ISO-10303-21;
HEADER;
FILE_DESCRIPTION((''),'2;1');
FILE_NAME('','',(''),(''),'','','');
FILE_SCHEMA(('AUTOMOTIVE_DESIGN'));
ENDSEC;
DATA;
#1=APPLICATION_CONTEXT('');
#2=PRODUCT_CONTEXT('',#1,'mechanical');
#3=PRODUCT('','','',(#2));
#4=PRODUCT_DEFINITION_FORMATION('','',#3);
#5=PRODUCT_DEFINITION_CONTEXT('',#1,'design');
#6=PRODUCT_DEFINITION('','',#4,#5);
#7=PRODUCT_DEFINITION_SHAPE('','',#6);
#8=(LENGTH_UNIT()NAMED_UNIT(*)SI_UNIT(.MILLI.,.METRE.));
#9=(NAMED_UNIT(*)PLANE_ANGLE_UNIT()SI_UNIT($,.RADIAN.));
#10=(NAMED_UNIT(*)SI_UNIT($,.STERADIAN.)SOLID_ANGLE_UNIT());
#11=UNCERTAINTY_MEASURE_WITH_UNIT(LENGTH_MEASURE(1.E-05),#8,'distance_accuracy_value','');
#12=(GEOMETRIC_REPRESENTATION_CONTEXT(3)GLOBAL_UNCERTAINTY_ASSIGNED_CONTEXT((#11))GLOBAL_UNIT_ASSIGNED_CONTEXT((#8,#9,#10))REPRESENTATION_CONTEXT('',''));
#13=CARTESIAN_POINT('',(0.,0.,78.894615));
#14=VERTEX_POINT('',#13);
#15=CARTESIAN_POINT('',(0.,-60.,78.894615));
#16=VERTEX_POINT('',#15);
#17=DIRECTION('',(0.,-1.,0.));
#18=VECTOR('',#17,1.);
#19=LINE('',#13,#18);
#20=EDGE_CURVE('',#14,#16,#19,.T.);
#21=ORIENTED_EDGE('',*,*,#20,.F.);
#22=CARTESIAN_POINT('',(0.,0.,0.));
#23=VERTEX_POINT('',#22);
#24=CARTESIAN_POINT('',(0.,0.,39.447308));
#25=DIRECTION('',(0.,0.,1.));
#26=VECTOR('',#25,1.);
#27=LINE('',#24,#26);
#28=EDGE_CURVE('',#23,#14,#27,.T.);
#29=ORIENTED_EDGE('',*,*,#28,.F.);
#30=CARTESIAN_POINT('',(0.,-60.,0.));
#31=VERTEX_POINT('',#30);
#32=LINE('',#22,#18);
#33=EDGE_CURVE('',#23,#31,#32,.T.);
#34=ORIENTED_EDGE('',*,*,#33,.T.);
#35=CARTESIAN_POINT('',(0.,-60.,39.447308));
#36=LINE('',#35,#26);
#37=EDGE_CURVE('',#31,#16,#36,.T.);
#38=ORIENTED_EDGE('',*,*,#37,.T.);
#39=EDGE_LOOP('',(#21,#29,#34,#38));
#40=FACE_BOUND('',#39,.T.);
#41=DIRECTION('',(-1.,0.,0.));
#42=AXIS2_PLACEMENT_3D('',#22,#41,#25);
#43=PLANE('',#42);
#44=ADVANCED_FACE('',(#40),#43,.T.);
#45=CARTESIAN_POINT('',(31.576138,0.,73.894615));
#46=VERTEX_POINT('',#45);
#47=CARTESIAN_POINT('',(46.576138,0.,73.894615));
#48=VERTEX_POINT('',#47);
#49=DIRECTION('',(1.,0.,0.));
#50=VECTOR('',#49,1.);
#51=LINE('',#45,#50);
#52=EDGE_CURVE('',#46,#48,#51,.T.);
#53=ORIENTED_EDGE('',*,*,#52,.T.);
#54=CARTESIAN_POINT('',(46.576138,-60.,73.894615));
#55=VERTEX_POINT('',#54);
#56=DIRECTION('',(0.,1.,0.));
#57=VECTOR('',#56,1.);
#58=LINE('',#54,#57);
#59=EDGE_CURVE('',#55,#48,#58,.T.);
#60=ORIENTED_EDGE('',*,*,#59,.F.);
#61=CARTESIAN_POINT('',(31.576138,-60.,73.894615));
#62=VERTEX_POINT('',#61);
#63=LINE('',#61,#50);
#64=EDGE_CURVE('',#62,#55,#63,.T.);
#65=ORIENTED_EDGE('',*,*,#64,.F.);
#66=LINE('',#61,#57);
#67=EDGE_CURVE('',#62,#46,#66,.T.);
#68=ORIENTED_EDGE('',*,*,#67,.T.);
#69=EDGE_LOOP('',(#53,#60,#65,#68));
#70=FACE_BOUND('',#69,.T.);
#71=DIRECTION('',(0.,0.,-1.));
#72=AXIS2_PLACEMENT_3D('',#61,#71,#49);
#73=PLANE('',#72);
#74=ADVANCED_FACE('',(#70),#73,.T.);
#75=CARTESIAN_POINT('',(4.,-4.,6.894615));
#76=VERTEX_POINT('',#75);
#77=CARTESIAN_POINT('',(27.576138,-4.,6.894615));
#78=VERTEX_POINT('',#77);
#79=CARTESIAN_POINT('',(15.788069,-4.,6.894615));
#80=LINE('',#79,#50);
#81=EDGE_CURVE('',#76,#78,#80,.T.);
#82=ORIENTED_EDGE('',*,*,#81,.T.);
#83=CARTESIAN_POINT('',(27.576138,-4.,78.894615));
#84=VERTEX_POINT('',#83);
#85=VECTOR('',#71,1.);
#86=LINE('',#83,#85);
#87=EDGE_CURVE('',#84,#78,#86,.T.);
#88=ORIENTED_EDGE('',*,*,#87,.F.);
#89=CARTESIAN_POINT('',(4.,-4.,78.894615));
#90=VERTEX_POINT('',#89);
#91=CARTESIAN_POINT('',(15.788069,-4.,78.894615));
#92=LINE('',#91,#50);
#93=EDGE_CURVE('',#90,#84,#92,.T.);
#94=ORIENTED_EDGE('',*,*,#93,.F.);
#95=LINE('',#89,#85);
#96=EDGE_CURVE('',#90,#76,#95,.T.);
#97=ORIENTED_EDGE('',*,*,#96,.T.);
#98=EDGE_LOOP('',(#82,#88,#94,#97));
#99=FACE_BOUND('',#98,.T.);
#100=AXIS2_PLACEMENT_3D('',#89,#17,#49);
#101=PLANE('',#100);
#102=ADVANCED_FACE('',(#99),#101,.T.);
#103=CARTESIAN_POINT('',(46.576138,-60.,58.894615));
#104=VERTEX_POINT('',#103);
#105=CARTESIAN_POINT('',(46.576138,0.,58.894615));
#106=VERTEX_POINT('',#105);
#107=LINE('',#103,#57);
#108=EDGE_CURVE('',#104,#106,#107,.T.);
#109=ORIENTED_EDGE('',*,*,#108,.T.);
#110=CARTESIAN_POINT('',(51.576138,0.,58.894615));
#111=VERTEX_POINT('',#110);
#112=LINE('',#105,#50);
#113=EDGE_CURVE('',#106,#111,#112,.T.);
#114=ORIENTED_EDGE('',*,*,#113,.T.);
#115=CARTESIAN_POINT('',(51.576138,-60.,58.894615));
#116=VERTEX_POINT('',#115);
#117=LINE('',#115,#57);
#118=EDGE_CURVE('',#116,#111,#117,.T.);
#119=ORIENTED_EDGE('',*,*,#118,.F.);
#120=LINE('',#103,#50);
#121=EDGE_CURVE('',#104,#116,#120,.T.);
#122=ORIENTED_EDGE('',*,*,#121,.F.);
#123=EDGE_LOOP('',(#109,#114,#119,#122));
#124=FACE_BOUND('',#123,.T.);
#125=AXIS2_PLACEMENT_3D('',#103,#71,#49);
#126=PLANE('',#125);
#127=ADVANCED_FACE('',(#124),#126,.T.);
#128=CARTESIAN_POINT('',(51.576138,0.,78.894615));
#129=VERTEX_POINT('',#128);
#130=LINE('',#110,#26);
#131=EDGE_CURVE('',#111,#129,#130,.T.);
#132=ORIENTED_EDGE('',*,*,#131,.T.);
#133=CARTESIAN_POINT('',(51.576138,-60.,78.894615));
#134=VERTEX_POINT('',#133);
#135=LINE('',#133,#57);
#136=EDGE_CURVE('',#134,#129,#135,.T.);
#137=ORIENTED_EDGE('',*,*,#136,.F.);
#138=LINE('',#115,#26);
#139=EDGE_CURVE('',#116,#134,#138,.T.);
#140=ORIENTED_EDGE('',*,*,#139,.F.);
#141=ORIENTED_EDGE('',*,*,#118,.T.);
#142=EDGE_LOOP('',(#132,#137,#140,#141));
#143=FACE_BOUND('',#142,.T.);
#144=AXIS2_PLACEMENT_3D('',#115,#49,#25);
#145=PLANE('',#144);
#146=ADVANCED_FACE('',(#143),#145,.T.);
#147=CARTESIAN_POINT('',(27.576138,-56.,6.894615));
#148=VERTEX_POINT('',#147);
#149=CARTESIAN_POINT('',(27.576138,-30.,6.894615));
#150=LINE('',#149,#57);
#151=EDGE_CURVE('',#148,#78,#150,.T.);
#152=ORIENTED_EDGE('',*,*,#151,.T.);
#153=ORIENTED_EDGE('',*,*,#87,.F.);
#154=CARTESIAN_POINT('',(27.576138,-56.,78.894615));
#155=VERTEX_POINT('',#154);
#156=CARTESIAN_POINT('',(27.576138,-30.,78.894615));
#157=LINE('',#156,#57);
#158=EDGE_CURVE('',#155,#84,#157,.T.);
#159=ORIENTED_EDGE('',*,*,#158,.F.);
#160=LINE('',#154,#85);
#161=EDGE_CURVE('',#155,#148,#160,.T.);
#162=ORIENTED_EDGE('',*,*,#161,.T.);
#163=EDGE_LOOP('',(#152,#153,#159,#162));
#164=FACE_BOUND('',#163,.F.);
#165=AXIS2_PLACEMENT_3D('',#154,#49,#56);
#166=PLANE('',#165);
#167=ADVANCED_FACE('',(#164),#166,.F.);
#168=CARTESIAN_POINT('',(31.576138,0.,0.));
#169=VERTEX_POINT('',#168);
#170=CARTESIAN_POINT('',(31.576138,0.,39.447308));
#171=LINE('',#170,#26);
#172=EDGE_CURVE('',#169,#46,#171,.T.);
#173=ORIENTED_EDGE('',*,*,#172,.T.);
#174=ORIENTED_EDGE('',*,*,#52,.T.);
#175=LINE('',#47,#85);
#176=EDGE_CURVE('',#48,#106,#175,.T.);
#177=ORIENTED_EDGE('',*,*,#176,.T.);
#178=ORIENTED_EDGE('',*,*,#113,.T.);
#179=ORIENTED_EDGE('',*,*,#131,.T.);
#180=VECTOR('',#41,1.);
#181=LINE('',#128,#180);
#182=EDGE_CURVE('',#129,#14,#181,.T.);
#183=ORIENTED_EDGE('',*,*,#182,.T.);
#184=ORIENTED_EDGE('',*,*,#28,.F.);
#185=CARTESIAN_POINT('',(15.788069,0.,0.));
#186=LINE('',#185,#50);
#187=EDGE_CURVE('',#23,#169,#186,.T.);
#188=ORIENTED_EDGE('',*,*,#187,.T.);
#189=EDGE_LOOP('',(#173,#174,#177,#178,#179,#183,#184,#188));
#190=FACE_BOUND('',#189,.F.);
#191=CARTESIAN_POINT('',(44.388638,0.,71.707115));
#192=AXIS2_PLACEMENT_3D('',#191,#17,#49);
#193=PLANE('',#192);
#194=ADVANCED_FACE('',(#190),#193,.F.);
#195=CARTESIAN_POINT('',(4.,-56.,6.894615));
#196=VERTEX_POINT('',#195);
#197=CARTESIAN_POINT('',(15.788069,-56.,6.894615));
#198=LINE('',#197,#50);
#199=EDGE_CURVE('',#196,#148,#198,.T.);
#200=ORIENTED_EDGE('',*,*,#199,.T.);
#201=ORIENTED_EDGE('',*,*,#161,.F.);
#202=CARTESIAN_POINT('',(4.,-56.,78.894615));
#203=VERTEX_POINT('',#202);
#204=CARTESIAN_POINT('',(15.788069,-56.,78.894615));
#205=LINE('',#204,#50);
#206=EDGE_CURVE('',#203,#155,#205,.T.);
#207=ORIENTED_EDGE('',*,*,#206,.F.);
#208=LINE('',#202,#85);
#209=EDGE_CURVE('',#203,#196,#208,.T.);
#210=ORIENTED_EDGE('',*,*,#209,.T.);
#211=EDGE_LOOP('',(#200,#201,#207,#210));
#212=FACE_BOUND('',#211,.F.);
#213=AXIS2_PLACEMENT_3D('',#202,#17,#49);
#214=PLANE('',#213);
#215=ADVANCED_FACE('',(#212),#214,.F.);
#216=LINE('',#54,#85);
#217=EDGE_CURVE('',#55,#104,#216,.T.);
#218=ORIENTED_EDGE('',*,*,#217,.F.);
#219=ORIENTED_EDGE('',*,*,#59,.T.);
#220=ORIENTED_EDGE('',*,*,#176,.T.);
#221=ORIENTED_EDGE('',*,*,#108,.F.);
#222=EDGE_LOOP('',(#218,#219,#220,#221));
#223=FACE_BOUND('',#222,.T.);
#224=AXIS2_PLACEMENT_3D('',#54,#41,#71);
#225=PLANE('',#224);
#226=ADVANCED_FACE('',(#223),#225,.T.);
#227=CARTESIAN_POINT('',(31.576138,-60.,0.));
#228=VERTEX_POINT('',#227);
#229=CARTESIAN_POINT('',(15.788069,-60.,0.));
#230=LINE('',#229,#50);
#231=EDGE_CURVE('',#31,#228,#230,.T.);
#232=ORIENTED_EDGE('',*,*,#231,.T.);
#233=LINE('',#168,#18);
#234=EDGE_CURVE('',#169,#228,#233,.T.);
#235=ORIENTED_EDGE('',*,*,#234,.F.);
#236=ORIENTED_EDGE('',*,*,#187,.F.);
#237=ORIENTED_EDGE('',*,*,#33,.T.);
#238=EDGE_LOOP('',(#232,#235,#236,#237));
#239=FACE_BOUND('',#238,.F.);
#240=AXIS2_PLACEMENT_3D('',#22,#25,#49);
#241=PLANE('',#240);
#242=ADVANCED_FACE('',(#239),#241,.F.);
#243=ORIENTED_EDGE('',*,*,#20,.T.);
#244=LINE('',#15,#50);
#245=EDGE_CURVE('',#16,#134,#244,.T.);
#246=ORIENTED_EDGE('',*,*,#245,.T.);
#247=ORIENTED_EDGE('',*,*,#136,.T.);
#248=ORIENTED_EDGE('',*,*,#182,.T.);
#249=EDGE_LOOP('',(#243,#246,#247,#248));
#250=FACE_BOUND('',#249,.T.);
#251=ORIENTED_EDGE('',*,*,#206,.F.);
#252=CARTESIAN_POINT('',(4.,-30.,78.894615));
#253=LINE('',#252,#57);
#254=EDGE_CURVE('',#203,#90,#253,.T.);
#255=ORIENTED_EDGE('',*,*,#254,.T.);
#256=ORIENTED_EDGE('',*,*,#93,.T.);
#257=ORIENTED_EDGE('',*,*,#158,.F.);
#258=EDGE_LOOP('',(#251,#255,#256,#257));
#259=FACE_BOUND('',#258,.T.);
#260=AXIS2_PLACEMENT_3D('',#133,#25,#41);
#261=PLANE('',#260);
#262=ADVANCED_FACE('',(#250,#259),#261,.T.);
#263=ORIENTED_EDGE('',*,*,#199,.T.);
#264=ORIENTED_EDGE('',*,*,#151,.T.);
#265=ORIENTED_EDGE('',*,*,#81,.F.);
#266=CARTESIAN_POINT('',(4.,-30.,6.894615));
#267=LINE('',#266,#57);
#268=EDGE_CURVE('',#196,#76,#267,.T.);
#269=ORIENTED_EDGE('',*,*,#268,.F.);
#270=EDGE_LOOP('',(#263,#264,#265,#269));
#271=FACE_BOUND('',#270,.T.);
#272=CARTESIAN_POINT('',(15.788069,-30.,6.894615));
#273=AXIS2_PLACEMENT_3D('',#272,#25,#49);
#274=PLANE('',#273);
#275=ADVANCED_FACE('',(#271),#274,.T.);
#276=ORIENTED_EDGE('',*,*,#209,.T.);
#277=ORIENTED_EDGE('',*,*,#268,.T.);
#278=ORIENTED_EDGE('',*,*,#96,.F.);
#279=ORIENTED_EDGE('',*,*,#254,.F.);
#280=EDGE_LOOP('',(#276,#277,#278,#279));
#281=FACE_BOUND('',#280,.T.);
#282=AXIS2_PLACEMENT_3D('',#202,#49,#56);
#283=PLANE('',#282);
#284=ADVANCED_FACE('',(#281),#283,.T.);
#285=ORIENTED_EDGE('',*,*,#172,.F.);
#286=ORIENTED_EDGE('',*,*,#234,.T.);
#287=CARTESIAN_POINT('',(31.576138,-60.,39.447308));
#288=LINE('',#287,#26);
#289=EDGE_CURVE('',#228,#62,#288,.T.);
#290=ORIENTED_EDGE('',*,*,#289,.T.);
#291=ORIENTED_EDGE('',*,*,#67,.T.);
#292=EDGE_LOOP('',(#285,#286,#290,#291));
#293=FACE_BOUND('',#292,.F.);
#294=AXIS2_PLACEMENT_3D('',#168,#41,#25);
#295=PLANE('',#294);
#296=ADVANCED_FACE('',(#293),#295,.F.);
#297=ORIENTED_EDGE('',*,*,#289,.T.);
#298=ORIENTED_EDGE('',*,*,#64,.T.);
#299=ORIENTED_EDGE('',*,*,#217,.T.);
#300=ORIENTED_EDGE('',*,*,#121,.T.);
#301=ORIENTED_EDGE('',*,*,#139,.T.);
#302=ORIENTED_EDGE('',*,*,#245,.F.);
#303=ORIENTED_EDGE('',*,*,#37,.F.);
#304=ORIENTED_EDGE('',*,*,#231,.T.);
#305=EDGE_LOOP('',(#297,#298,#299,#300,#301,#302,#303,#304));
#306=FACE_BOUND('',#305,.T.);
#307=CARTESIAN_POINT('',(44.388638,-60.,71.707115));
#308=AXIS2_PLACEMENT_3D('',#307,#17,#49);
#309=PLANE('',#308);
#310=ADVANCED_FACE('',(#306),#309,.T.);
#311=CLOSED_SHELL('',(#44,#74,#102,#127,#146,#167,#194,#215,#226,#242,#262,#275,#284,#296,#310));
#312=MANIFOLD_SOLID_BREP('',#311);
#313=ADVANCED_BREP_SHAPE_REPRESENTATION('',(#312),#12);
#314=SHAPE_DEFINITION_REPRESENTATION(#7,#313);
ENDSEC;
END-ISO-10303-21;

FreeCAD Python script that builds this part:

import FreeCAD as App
import Part
import Sketcher
from FreeCAD import Vector

doc = App.newDocument("Part")
body = doc.addObject("PartDesign::Body", "Body")

sketch1 = body.newObject("Sketcher::SketchObject", "Sketch")
sketch1.AttachmentSupport = (doc.getObject("XZ_Plane"), [""])
sketch1.MapMode = "FlatFace"
sketch1.addGeometry(Part.LineSegment(Vector(0, 79, 0), Vector(0, 0, 0)), False)
sketch1.addGeometry(Part.LineSegment(Vector(0, 0, 0), Vector(32, 0, 0)), False)
sketch1.addGeometry(Part.LineSegment(Vector(32, 0, 0), Vector(32, 79, 0)), False)
sketch1.addGeometry(Part.LineSegment(Vector(32, 79, 0), Vector(0, 79, 0)), False)
sketch1.addConstraint(Sketcher.Constraint("Coincident", 0, 2, 1, 1))
sketch1.addConstraint(Sketcher.Constraint("Coincident", 1, 2, 2, 1))
sketch1.addConstraint(Sketcher.Constraint("Coincident", 2, 2, 3, 1))
sketch1.addConstraint(Sketcher.Constraint("Coincident", 3, 2, 0, 1))
sketch1.addConstraint(Sketcher.Constraint("Vertical", 0))
sketch1.addConstraint(Sketcher.Constraint("Horizontal", 1))
sketch1.addConstraint(Sketcher.Constraint("Vertical", 2))
sketch1.addConstraint(Sketcher.Constraint("Horizontal", 3))
sketch1.addConstraint(Sketcher.Constraint("Coincident", 0, 2, -1, 1))
sketch1.addConstraint(Sketcher.Constraint("DistanceX", 1, 1, 1, 2, 31.576138))
sketch1.addConstraint(Sketcher.Constraint("DistanceY", 0, 2, 0, 1, 78.894615))
pad1 = body.newObject("PartDesign::Pad", "Pad")
pad1.Profile = sketch1
pad1.Length = 60

sketch2 = body.newObject("Sketcher::SketchObject", "Sketch001")
sketch2.AttachmentSupport = (doc.getObject("XY_Plane"), [""])
sketch2.MapMode = "FlatFace"
sketch2.AttachmentOffset = App.Placement(Vector(0, 0, 78.894615), App.Rotation())
sketch2.addGeometry(Part.LineSegment(Vector(4, -4, 0), Vector(4, -56, 0)), False)
sketch2.addGeometry(Part.LineSegment(Vector(4, -56, 0), Vector(28, -56, 0)), False)
sketch2.addGeometry(Part.LineSegment(Vector(28, -56, 0), Vector(28, -4, 0)), False)
sketch2.addGeometry(Part.LineSegment(Vector(28, -4, 0), Vector(4, -4, 0)), False)
sketch2.addConstraint(Sketcher.Constraint("Coincident", 0, 2, 1, 1))
sketch2.addConstraint(Sketcher.Constraint("Coincident", 1, 2, 2, 1))
sketch2.addConstraint(Sketcher.Constraint("Coincident", 2, 2, 3, 1))
sketch2.addConstraint(Sketcher.Constraint("Coincident", 3, 2, 0, 1))
sketch2.addConstraint(Sketcher.Constraint("Vertical", 0))
sketch2.addConstraint(Sketcher.Constraint("Horizontal", 1))
sketch2.addConstraint(Sketcher.Constraint("Vertical", 2))
sketch2.addConstraint(Sketcher.Constraint("Horizontal", 3))
sketch2.addConstraint(Sketcher.Constraint("DistanceY", 0, 2, 0, 1, 52.0))
sketch2.addConstraint(Sketcher.Constraint("DistanceX", -1, 1, 0, 2, 4.0))
sketch2.addConstraint(Sketcher.Constraint("DistanceY", 0, 2, -1, 1, 56.0))
sketch2.addConstraint(Sketcher.Constraint("DistanceX", 1, 1, 1, 2, 23.576138))
pocket1 = body.newObject("PartDesign::Pocket", "Pocket")
pocket1.Profile = sketch2
pocket1.Length = 72

sketch3 = body.newObject("Sketcher::SketchObject", "Sketch002")
sketch3.AttachmentSupport = (doc.getObject("XZ_Plane"), [""])
sketch3.MapMode = "FlatFace"
sketch3.AttachmentOffset = App.Placement(Vector(0, 0, 60), App.Rotation())
sketch3.addGeometry(Part.LineSegment(Vector(52, 79, 0), Vector(32, 79, 0)), False)
sketch3.addGeometry(Part.LineSegment(Vector(32, 79, 0), Vector(32, 74, 0)), False)
sketch3.addGeometry(Part.LineSegment(Vector(32, 74, 0), Vector(47, 74, 0)), False)
sketch3.addGeometry(Part.LineSegment(Vector(47, 74, 0), Vector(47, 59, 0)), False)
sketch3.addGeometry(Part.LineSegment(Vector(47, 59, 0), Vector(52, 59, 0)), False)
sketch3.addGeometry(Part.LineSegment(Vector(52, 59, 0), Vector(52, 79, 0)), False)
sketch3.addConstraint(Sketcher.Constraint("Coincident", 0, 2, 1, 1))
sketch3.addConstraint(Sketcher.Constraint("Coincident", 1, 2, 2, 1))
sketch3.addConstraint(Sketcher.Constraint("Coincident", 2, 2, 3, 1))
sketch3.addConstraint(Sketcher.Constraint("Coincident", 3, 2, 4, 1))
sketch3.addConstraint(Sketcher.Constraint("Coincident", 4, 2, 5, 1))
sketch3.addConstraint(Sketcher.Constraint("Coincident", 5, 2, 0, 1))
sketch3.addConstraint(Sketcher.Constraint("Horizontal", 0))
sketch3.addConstraint(Sketcher.Constraint("Vertical", 1))
sketch3.addConstraint(Sketcher.Constraint("Horizontal", 2))
sketch3.addConstraint(Sketcher.Constraint("Vertical", 3))
sketch3.addConstraint(Sketcher.Constraint("Horizontal", 4))
sketch3.addConstraint(Sketcher.Constraint("Vertical", 5))
sketch3.addConstraint(Sketcher.Constraint("Equal", 4, 1))
sketch3.addConstraint(Sketcher.Constraint("Equal", 2, 3))
sketch3.addConstraint(Sketcher.Constraint("DistanceX", 0, 2, 0, 1, 20.0))
sketch3.addConstraint(Sketcher.Constraint("DistanceX", 2, 1, 2, 2, 15.0))
sketch3.addConstraint(Sketcher.Constraint("DistanceX", -1, 1, 0, 2, 31.576138))
sketch3.addConstraint(Sketcher.Constraint("DistanceY", -1, 1, 0, 2, 78.894615))
pad2 = body.newObject("PartDesign::Pad", "Pad001")
pad2.Profile = sketch3
pad2.Length = 60
pad2.Reversed = True

doc.recompute()
